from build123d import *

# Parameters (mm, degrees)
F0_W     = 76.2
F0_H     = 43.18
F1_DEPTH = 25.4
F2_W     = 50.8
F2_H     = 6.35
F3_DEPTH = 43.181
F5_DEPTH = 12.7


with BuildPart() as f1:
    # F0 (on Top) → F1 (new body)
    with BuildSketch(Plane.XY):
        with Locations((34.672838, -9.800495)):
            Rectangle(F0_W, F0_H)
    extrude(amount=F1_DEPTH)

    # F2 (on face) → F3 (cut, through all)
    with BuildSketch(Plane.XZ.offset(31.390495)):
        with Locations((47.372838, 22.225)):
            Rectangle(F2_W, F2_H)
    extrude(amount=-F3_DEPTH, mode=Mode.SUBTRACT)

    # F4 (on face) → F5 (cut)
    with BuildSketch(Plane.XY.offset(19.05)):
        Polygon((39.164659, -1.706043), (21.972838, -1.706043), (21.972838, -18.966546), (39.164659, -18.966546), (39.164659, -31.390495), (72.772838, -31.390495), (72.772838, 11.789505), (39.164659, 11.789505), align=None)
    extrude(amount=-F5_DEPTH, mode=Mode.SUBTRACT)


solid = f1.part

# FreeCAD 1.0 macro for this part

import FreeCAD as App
import Part
import Sketcher

V = App.Vector
Q = App.Units.Quantity


def add_polygon(sketch, points):
    """Adds a closed chain of lines whose ends are joined by coincident constraints."""
    first, n = sketch.GeometryCount, len(points)
    for a, b in zip(points, points[1:] + points[:1]):
        sketch.addGeometry(Part.LineSegment(App.Vector(*a, 0), App.Vector(*b, 0)), False)
    for i in range(n):
        sketch.addConstraint(Sketcher.Constraint("Coincident", first + i, 2, first + (i + 1) % n, 1))

doc = App.newDocument("Part")
body = doc.addObject("PartDesign::Body", "Body")

# Sketch on XY plane
sketch1 = doc.addObject("Sketcher::SketchObject", "Sketch")
body.addObject(sketch1)
sketch1.AttachmentSupport = (doc.XY_Plane, [""])
sketch1.MapMode = "FlatFace"
add_polygon(sketch1, [(-3, 12), (-3, -31), (73, -31), (73, 12)])  # lines 0-3
sketch1.addConstraint([
    Sketcher.Constraint("Vertical", 0),
    Sketcher.Constraint("Horizontal", 1),
    Sketcher.Constraint("Vertical", 2),
    Sketcher.Constraint("Horizontal", 3),
    Sketcher.Constraint("DistanceX", 1, 1, 1, 2, Q("3 in")),
    Sketcher.Constraint("DistanceY", 0, 2, 0, 1, Q("1.7 in")),
    Sketcher.Constraint("DistanceX", 0, 2, -1, 1, 3.427162),
    Sketcher.Constraint("DistanceY", 0, 2, -1, 1, 31.390495),
])
pad1 = doc.addObject("PartDesign::Pad", "Pad")
body.addObject(pad1)
pad1.Profile = sketch1
pad1.Length = Q("1 in")

# Sketch on XZ plane
sketch2 = doc.addObject("Sketcher::SketchObject", "Sketch001")
body.addObject(sketch2)
sketch2.AttachmentSupport = (doc.XZ_Plane, [""])
sketch2.MapMode = "FlatFace"
sketch2.AttachmentOffset = App.Placement(V(0, 0, 31.390495), App.Rotation())
add_polygon(sketch2, [(22, 25), (22, 19), (73, 19), (73, 25)])  # lines 0-3
sketch2.addConstraint([
    Sketcher.Constraint("Vertical", 0),
    Sketcher.Constraint("Horizontal", 1),
    Sketcher.Constraint("Vertical", 2),
    Sketcher.Constraint("Horizontal", 3),
    Sketcher.Constraint("DistanceX", 1, 1, 1, 2, Q("2 in")),
    Sketcher.Constraint("DistanceY", -1, 1, 2, 2, Q("1 in")),
    Sketcher.Constraint("DistanceY", 0, 2, 0, 1, Q("0.25 in")),
    Sketcher.Constraint("DistanceX", -1, 1, 0, 2, 21.972838),
])
pocket1 = doc.addObject("PartDesign::Pocket", "Pocket")
body.addObject(pocket1)
pocket1.Profile = sketch2
pocket1.Type = "ThroughAll"

# Sketch on XY plane
sketch3 = doc.addObject("Sketcher::SketchObject", "Sketch002")
body.addObject(sketch3)
sketch3.AttachmentSupport = (doc.XY_Plane, [""])
sketch3.MapMode = "FlatFace"
sketch3.AttachmentOffset = App.Placement(V(0, 0, 0.75 * 25.4), App.Rotation())
add_polygon(sketch3, [(39, -2), (22, -2), (22, -19), (39, -19), (39, -31), (73, -31), (73, 12), (39, 12)])  # lines 0-7
sketch3.addConstraint([
    Sketcher.Constraint("Horizontal", 0),
    Sketcher.Constraint("Vertical", 1),
    Sketcher.Constraint("Horizontal", 2),
    Sketcher.Constraint("Vertical", 3),
    Sketcher.Constraint("Horizontal", 4),
    Sketcher.Constraint("Vertical", 5),
    Sketcher.Constraint("Horizontal", 6),
    Sketcher.Constraint("Vertical", 7),
    Sketcher.Constraint("Vertical", 3, 2, 6, 2),
    Sketcher.Constraint("DistanceY", 5, 1, 5, 2, Q("1.7 in")),
    Sketcher.Constraint("DistanceX", 1, 2, 4, 2, Q("2 in")),
    Sketcher.Constraint("DistanceX", 0, 2, 0, 1, 17.191821),
    Sketcher.Constraint("DistanceY", 3, 2, 3, 1, 12.423949),
    Sketcher.Constraint("DistanceY", 1, 2, 1, 1, 17.260503),
    Sketcher.Constraint("DistanceX", -1, 1, 2, 2, 39.164659),
    Sketcher.Constraint("DistanceY", 0, 2, -1, 1, 1.706043),
])
pocket2 = doc.addObject("PartDesign::Pocket", "Pocket001")
body.addObject(pocket2)
pocket2.Profile = sketch3
pocket2.Length = Q("0.5 in")

doc.recompute()
